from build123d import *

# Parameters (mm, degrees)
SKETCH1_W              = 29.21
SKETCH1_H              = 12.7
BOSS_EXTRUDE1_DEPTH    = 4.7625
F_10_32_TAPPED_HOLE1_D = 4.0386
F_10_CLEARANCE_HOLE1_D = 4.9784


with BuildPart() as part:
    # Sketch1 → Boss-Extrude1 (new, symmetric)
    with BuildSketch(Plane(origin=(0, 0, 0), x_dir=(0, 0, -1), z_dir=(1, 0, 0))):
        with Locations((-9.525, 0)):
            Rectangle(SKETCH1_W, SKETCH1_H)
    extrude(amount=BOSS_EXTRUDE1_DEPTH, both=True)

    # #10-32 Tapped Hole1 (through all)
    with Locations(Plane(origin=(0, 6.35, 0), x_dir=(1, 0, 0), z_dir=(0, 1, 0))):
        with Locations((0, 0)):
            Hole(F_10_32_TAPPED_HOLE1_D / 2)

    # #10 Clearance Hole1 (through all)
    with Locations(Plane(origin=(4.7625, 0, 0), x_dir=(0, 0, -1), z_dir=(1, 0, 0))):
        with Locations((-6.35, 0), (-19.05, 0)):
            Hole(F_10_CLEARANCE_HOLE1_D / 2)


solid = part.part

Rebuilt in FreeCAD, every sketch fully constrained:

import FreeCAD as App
import Part
import Sketcher

V = App.Vector
Q = App.Units.Quantity

doc = App.newDocument("Part")
params = doc.addObject("Spreadsheet::Sheet", "Params")
for row, (alias, value) in enumerate([
    ("sketch1_width", "0.5 in"),
    ("sketch1_height", "1.15 in"),
    ("pad1_length", "0.375 in"),
    ("sketch2_diameter", "0.159 in"),
    ("hole_diameter", "0.159 in"),
    ("sketch3_diameter", "0.196 in"),
    ("hole2_diameter", "0.196 in"),
], start=1):
    params.set(f"A{row}", alias)
    params.set(f"B{row}", "=" + value)
    params.setAlias(f"B{row}", alias)

body = doc.addObject("PartDesign::Body", "Body")

# Sketch on YZ plane
sketch1 = body.newObject("Sketcher::SketchObject", "Sketch")
sketch1.AttachmentSupport = (doc.getObject("YZ_Plane"), [""])
sketch1.MapMode = "FlatFace"
sketch1.addGeometry([
    Part.LineSegment(V(6.35, 24.13, 0), V(-6.35, 24.13, 0)),
    Part.LineSegment(V(-6.35, 24.13, 0), V(-6.35, -5.08, 0)),
    Part.LineSegment(V(-6.35, -5.08, 0), V(6.35, -5.08, 0)),
    Part.LineSegment(V(6.35, -5.08, 0), V(6.35, 24.13, 0)),
], False)
sketch1.addConstraint([
    Sketcher.Constraint("Coincident", 0, 2, 1, 1),
    Sketcher.Constraint("Coincident", 1, 2, 2, 1),
    Sketcher.Constraint("Coincident", 2, 2, 3, 1),
    Sketcher.Constraint("Coincident", 3, 2, 0, 1),
    Sketcher.Constraint("Horizontal", 0),
    Sketcher.Constraint("Vertical", 1),
    Sketcher.Constraint("Horizontal", 2),
    Sketcher.Constraint("Vertical", 3),
    Sketcher.Constraint("DistanceX", 0, 2, 0, 1, Q("0.5 in")),
    Sketcher.Constraint("DistanceY", 1, 2, 1, 1, Q("1.15 in")),
    Sketcher.Constraint("DistanceY", 1, 2, -1, 1, Q("0.2 in")),
    Sketcher.Constraint("DistanceX", 0, 2, -1, 1, Q("0.25 in")),
])
sketch1.setExpression("Constraints[8]", "Params.sketch1_width")
sketch1.setExpression("Constraints[9]", "Params.sketch1_height")
pad1 = body.newObject("PartDesign::Pad", "Pad")
pad1.Profile = sketch1
pad1.setExpression("Length", "Params.pad1_length")
pad1.Midplane = True

# Sketch on XZ plane
sketch2 = body.newObject("Sketcher::SketchObject", "Sketch001")
sketch2.AttachmentSupport = (doc.getObject("XZ_Plane"), [""])
sketch2.MapMode = "FlatFace"
sketch2.AttachmentOffset = App.Placement(V(0, 0, -0.25 * 25.4), App.Rotation())
sketch2.addGeometry(Part.Circle(V(0, 0, 0), V(0, 0, 1), 2.0193), False)
sketch2.addConstraint([
    Sketcher.Constraint("Coincident", 0, 3, -1, 1),
    Sketcher.Constraint("Diameter", 0, Q("0.159 in")),
])
sketch2.setExpression("Constraints[1]", "Params.sketch2_diameter")
doc.recompute()
hole = body.newObject("PartDesign::Hole", "Hole")
hole.Profile = sketch2
hole.ThreadType = "None"
hole.setExpression("Diameter", "Params.hole_diameter")
hole.DepthType = "ThroughAll"
hole.Reversed = True

# Sketch on YZ plane
sketch3 = body.newObject("Sketcher::SketchObject", "Sketch002")
sketch3.AttachmentSupport = (doc.getObject("YZ_Plane"), [""])
sketch3.MapMode = "FlatFace"
sketch3.AttachmentOffset = App.Placement(V(0, 0, 0.1875 * 25.4), App.Rotation())
sketch3.addGeometry([
    Part.Circle(V(0, 6.35, 0), V(0, 0, 1), 2.4892),
    Part.Circle(V(0, 19.05, 0), V(0, 0, 1), 2.4892),
], False)
sketch3.addConstraint([
    Sketcher.Constraint("Equal", 0, 1),
    Sketcher.Constraint("PointOnObject", 0, 3, -2),
    Sketcher.Constraint("PointOnObject", 1, 3, -2),
    Sketcher.Constraint("Diameter", 0, Q("0.196 in")),
    Sketcher.Constraint("DistanceY", 0, 3, 1, 3, Q("0.5 in")),
    Sketcher.Constraint("DistanceY", -1, 1, 0, 3, Q("0.25 in")),
])
sketch3.setExpression("Constraints[3]", "Params.sketch3_diameter")
doc.recompute()
hole2 = body.newObject("PartDesign::Hole", "Hole001")
hole2.Profile = sketch3
hole2.ThreadType = "None"
hole2.setExpression("Diameter", "Params.hole2_diameter")
hole2.DepthType = "ThroughAll"

doc.recompute()
